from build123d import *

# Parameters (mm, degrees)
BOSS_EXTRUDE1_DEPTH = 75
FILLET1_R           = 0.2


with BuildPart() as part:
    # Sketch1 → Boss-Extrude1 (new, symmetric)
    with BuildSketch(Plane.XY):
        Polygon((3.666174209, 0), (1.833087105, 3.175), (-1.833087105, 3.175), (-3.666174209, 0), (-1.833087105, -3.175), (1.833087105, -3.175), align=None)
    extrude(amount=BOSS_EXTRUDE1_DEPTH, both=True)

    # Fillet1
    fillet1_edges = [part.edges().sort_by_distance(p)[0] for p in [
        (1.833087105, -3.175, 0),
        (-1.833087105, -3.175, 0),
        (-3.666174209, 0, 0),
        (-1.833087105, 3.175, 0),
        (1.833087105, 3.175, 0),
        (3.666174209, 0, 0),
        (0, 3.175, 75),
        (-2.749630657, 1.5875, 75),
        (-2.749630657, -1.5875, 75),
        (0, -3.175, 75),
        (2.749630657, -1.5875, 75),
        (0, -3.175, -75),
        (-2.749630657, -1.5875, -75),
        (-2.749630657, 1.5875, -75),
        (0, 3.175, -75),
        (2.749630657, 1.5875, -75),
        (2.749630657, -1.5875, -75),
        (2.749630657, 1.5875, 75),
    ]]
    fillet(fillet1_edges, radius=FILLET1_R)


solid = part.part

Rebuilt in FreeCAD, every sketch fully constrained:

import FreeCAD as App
import Part
import Sketcher
Q = App.Units.Quantity

doc = App.newDocument("Part")
body = doc.addObject("PartDesign::Body", "Body")

sketch1 = body.newObject("Sketcher::SketchObject", "Sketch")
sketch1.AttachmentSupport = (doc.getObject("XY_Plane"), [""])
sketch1.MapMode = "FlatFace"
sketch1.addGeometry(Part.LineSegment(App.Vector(3.7, 0, 0), App.Vector(1.8, 3.2, 0)), False)
sketch1.addGeometry(Part.LineSegment(App.Vector(1.8, 3.2, 0), App.Vector(-1.8, 3.2, 0)), False)
sketch1.addGeometry(Part.LineSegment(App.Vector(-1.8, 3.2, 0), App.Vector(-3.7, 0, 0)), False)
sketch1.addGeometry(Part.LineSegment(App.Vector(-3.7, 0, 0), App.Vector(-1.8, -3.2, 0)), False)
sketch1.addGeometry(Part.LineSegment(App.Vector(-1.8, -3.2, 0), App.Vector(1.8, -3.2, 0)), False)
sketch1.addGeometry(Part.LineSegment(App.Vector(1.8, -3.2, 0), App.Vector(3.7, 0, 0)), False)
sketch1.addConstraint(Sketcher.Constraint("Coincident", 0, 2, 1, 1))
sketch1.addConstraint(Sketcher.Constraint("Coincident", 1, 2, 2, 1))
sketch1.addConstraint(Sketcher.Constraint("Coincident", 2, 2, 3, 1))
sketch1.addConstraint(Sketcher.Constraint("Coincident", 3, 2, 4, 1))
sketch1.addConstraint(Sketcher.Constraint("Coincident", 4, 2, 5, 1))
sketch1.addConstraint(Sketcher.Constraint("Coincident", 5, 2, 0, 1))
sketch1.addConstraint(Sketcher.Constraint("Horizontal", 1))
sketch1.addConstraint(Sketcher.Constraint("Horizontal", 4))
sketch1.addConstraint(Sketcher.Constraint("Symmetric", 0, 2, 3, 2, -1, 1))
sketch1.addConstraint(Sketcher.Constraint("Symmetric", 2, 2, 5, 2, -1, 1))
sketch1.addConstraint(Sketcher.Constraint("PointOnObject", 2, 2, -1))
sketch1.addConstraint(Sketcher.Constraint("Parallel", 2, 5))
sketch1.addConstraint(Sketcher.Constraint("Vertical", 1, 2, 3, 2))
sketch1.addConstraint(Sketcher.Constraint("Angle", 0, Q("120 deg")))
sketch1.addConstraint(Sketcher.Constraint("DistanceY", 3, 2, 1, 2, 6.35))
sketch1.addConstraint(Sketcher.Constraint("DistanceX", 1, 2, 1, 1, 3.666174))
pad1 = body.newObject("PartDesign::Pad", "Pad")
pad1.Profile = sketch1
pad1.Length = 150
pad1.Midplane = True
doc.recompute()

fillet = body.newObject("PartDesign::Fillet", "Fillet")
fillet.Base = (pad1, ["Edge1"])
fillet.UseAllEdges = True
fillet.Radius = 0.2

doc.recompute()
